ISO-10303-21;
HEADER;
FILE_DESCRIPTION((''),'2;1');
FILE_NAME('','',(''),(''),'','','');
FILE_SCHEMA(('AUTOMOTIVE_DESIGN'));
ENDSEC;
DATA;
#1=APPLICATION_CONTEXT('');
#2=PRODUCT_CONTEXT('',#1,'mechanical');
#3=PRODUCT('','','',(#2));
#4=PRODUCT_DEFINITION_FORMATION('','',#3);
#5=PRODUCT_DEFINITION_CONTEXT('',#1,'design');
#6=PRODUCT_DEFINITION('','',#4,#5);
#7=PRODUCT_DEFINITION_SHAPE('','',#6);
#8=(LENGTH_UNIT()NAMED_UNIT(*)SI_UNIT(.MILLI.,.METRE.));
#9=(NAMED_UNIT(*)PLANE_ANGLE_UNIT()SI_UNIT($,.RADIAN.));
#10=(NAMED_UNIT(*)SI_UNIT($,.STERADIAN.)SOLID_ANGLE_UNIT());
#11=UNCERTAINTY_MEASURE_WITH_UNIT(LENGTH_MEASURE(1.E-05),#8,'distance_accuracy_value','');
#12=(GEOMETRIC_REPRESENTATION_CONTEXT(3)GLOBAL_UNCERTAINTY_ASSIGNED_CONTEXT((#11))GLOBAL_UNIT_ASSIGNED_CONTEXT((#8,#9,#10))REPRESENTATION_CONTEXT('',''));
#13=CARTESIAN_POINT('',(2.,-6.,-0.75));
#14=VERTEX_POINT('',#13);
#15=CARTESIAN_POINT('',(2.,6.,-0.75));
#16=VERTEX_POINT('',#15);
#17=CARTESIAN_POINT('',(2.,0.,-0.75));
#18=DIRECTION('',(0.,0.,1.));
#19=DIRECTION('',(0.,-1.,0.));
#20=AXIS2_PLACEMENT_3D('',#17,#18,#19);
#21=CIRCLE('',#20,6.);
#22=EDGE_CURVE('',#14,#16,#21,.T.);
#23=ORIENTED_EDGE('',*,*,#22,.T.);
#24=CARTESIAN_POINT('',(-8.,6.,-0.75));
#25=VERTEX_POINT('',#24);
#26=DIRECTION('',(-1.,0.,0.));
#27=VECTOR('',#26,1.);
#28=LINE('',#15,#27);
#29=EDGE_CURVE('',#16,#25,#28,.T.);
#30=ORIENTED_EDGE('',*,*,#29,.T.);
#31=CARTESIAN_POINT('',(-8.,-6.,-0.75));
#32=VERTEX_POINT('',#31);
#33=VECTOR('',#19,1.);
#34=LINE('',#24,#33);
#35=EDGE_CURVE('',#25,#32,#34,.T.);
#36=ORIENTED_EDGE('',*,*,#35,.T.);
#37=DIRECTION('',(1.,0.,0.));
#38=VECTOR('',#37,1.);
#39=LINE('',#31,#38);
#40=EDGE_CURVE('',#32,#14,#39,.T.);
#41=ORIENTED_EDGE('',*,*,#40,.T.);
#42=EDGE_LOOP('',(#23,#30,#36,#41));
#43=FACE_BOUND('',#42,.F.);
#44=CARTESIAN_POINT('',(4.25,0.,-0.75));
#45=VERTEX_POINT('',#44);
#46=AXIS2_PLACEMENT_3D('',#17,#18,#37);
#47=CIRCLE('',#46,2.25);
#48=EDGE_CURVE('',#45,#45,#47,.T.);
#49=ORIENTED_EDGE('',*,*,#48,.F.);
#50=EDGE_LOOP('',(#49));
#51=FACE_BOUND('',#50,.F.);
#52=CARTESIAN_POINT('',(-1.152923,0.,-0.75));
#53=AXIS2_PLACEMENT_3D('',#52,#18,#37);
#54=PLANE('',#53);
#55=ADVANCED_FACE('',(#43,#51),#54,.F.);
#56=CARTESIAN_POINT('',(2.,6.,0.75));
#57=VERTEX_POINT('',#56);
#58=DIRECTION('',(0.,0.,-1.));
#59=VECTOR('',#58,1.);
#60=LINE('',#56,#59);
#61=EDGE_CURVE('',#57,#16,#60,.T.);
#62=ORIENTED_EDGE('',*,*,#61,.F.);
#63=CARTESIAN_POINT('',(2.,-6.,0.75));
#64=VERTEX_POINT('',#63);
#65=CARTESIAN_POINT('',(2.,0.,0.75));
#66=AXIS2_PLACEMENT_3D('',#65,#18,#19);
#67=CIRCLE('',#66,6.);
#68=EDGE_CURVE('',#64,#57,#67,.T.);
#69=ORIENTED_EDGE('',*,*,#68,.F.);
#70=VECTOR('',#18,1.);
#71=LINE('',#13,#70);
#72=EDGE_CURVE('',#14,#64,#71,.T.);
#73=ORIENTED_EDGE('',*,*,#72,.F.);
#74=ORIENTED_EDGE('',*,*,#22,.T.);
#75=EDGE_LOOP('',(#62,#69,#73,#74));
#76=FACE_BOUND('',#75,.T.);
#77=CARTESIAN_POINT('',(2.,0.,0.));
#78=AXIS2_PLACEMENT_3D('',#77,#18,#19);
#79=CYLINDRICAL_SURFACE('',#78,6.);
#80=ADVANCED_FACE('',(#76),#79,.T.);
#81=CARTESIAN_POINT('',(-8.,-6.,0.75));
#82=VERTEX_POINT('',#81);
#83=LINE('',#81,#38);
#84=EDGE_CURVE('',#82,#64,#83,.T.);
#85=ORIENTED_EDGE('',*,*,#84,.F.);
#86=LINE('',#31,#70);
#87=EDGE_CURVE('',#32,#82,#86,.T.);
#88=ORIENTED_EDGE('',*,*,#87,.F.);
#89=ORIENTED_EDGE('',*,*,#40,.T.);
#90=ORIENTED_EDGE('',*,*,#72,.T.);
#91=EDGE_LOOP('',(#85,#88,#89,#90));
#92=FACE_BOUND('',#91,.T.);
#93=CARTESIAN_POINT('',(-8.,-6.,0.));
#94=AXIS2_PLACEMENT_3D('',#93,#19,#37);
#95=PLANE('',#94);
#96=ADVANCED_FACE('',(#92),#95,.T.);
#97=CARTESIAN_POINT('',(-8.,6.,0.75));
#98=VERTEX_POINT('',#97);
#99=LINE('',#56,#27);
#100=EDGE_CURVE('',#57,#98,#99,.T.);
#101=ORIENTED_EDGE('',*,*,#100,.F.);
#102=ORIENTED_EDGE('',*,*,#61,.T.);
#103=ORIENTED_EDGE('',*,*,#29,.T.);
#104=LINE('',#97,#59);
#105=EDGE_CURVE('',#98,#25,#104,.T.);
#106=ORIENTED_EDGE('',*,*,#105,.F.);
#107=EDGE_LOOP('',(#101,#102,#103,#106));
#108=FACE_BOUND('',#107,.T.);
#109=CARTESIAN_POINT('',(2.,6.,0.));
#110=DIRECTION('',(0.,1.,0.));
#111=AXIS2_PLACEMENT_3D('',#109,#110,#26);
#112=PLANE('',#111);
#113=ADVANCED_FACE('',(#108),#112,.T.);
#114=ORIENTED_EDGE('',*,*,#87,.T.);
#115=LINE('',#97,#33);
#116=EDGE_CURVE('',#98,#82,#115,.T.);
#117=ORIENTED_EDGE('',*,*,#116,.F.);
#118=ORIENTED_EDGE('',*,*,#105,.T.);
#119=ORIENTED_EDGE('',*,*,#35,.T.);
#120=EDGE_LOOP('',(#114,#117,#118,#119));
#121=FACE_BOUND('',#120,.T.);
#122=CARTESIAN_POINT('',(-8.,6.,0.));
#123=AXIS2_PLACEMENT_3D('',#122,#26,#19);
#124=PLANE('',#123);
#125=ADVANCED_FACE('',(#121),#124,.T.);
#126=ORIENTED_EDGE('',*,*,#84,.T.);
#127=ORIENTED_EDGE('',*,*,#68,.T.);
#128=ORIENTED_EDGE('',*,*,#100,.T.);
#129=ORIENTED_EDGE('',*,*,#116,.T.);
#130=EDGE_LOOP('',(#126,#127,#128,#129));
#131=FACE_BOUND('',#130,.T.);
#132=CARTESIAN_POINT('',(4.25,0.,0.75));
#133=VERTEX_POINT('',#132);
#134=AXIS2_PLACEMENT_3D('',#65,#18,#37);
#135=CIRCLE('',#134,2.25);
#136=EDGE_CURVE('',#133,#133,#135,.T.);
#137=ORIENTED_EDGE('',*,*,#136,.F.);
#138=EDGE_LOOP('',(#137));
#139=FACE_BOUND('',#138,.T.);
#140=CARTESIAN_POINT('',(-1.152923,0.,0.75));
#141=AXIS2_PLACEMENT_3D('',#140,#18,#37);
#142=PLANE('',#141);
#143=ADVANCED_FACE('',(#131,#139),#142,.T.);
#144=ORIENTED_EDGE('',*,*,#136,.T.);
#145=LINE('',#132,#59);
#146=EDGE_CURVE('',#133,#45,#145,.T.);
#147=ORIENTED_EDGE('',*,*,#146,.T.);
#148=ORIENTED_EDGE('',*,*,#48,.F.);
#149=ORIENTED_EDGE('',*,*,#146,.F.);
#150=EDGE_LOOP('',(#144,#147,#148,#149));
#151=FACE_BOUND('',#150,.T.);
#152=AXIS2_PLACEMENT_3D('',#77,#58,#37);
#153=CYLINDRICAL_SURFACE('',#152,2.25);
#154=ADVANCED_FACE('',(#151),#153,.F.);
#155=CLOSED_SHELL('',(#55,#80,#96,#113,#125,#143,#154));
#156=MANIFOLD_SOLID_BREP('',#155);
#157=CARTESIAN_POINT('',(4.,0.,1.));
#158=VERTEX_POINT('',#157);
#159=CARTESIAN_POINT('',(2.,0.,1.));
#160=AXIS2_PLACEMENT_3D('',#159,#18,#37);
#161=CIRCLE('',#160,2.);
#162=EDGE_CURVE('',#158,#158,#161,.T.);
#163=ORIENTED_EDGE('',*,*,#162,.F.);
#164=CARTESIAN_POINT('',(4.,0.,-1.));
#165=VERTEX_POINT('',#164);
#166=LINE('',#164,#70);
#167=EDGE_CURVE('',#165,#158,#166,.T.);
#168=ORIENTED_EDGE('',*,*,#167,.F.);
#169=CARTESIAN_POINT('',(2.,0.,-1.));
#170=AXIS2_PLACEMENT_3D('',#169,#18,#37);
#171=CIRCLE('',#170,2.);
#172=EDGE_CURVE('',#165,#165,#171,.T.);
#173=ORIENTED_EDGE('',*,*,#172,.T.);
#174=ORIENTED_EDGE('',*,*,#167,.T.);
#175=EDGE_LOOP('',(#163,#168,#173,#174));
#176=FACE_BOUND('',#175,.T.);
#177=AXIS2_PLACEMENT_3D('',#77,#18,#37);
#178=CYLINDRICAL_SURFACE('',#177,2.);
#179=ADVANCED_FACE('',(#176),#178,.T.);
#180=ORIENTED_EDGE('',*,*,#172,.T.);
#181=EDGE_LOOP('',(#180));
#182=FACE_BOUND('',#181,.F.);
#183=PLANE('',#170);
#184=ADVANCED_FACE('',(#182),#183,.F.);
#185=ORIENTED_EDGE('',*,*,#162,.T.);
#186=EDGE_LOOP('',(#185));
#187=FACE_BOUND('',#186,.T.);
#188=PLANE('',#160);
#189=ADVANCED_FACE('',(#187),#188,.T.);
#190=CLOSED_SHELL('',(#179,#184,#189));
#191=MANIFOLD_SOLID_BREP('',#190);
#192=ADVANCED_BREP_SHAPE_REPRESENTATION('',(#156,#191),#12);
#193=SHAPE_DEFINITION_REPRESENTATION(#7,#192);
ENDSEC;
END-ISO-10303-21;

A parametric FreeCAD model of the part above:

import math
import FreeCAD as App
import Part
import Sketcher
from FreeCAD import Vector
Q = App.Units.Quantity

doc = App.newDocument("Part")
body = doc.addObject("PartDesign::Body", "Body")

sketch1 = body.newObject("Sketcher::SketchObject", "Sketch")
sketch1.AttachmentSupport = (doc.getObject("XY_Plane"), [""])
sketch1.MapMode = "FlatFace"
sketch1.addGeometry(Part.LineSegment(Vector(-8, 6, 0), Vector(-8, -6, 0)), False)
sketch1.addGeometry(Part.LineSegment(Vector(-8, -6, 0), Vector(2, -6, 0)), False)
sketch1.addGeometry(Part.ArcOfCircle(Part.Circle(Vector(2, 0, 0), Vector(0, 0, 1), 6), math.radians(-90), math.radians(90)), False)
sketch1.addGeometry(Part.LineSegment(Vector(2, 6, 0), Vector(-8, 6, 0)), False)
sketch1.addGeometry(Part.Circle(Vector(2, 0, 0), Vector(0, 0, 1), 2.2), False)
sketch1.addConstraint(Sketcher.Constraint("Coincident", 0, 2, 1, 1))
sketch1.addConstraint(Sketcher.Constraint("Tangent", 1, 2, 2, 1))
sketch1.addConstraint(Sketcher.Constraint("Tangent", 2, 2, 3, 1))
sketch1.addConstraint(Sketcher.Constraint("Coincident", 3, 2, 0, 1))
sketch1.addConstraint(Sketcher.Constraint("Vertical", 0))
sketch1.addConstraint(Sketcher.Constraint("Horizontal", 1))
sketch1.addConstraint(Sketcher.Constraint("Horizontal", 3))
sketch1.addConstraint(Sketcher.Constraint("Coincident", 4, 3, 2, 3))
sketch1.addConstraint(Sketcher.Constraint("PointOnObject", 2, 3, -1))
sketch1.addConstraint(Sketcher.Constraint("Radius", 2, Q("6 mm")))
sketch1.addConstraint(Sketcher.Constraint("Diameter", 4, Q("4.5 mm")))
sketch1.addConstraint(Sketcher.Constraint("DistanceX", 1, 1, 1, 2, Q("10 mm")))
sketch1.addConstraint(Sketcher.Constraint("DistanceX", -1, 1, 2, 3, Q("2 mm")))
pad1 = body.newObject("PartDesign::Pad", "Pad")
pad1.Profile = sketch1
pad1.Length = 1.5
pad1.Midplane = True
body2 = doc.addObject("PartDesign::Body", "Body001")

sketch2 = body2.newObject("Sketcher::SketchObject", "Sketch001")
sketch2.AttachmentSupport = (doc.getObject("XY_Plane001"), [""])
sketch2.MapMode = "FlatFace"
sketch2.addGeometry(Part.Circle(Vector(2, 0, 0), Vector(0, 0, 1), 2), False)
sketch2.addConstraint(Sketcher.Constraint("PointOnObject", 0, 3, -1))
sketch2.addConstraint(Sketcher.Constraint("Diameter", 0, Q("4 mm")))
sketch2.addConstraint(Sketcher.Constraint("DistanceX", -1, 1, 0, 3, Q("2 mm")))
pad2 = body2.newObject("PartDesign::Pad", "Pad001")
pad2.Profile = sketch2
pad2.Length = 2
pad2.Midplane = True

doc.recompute()
